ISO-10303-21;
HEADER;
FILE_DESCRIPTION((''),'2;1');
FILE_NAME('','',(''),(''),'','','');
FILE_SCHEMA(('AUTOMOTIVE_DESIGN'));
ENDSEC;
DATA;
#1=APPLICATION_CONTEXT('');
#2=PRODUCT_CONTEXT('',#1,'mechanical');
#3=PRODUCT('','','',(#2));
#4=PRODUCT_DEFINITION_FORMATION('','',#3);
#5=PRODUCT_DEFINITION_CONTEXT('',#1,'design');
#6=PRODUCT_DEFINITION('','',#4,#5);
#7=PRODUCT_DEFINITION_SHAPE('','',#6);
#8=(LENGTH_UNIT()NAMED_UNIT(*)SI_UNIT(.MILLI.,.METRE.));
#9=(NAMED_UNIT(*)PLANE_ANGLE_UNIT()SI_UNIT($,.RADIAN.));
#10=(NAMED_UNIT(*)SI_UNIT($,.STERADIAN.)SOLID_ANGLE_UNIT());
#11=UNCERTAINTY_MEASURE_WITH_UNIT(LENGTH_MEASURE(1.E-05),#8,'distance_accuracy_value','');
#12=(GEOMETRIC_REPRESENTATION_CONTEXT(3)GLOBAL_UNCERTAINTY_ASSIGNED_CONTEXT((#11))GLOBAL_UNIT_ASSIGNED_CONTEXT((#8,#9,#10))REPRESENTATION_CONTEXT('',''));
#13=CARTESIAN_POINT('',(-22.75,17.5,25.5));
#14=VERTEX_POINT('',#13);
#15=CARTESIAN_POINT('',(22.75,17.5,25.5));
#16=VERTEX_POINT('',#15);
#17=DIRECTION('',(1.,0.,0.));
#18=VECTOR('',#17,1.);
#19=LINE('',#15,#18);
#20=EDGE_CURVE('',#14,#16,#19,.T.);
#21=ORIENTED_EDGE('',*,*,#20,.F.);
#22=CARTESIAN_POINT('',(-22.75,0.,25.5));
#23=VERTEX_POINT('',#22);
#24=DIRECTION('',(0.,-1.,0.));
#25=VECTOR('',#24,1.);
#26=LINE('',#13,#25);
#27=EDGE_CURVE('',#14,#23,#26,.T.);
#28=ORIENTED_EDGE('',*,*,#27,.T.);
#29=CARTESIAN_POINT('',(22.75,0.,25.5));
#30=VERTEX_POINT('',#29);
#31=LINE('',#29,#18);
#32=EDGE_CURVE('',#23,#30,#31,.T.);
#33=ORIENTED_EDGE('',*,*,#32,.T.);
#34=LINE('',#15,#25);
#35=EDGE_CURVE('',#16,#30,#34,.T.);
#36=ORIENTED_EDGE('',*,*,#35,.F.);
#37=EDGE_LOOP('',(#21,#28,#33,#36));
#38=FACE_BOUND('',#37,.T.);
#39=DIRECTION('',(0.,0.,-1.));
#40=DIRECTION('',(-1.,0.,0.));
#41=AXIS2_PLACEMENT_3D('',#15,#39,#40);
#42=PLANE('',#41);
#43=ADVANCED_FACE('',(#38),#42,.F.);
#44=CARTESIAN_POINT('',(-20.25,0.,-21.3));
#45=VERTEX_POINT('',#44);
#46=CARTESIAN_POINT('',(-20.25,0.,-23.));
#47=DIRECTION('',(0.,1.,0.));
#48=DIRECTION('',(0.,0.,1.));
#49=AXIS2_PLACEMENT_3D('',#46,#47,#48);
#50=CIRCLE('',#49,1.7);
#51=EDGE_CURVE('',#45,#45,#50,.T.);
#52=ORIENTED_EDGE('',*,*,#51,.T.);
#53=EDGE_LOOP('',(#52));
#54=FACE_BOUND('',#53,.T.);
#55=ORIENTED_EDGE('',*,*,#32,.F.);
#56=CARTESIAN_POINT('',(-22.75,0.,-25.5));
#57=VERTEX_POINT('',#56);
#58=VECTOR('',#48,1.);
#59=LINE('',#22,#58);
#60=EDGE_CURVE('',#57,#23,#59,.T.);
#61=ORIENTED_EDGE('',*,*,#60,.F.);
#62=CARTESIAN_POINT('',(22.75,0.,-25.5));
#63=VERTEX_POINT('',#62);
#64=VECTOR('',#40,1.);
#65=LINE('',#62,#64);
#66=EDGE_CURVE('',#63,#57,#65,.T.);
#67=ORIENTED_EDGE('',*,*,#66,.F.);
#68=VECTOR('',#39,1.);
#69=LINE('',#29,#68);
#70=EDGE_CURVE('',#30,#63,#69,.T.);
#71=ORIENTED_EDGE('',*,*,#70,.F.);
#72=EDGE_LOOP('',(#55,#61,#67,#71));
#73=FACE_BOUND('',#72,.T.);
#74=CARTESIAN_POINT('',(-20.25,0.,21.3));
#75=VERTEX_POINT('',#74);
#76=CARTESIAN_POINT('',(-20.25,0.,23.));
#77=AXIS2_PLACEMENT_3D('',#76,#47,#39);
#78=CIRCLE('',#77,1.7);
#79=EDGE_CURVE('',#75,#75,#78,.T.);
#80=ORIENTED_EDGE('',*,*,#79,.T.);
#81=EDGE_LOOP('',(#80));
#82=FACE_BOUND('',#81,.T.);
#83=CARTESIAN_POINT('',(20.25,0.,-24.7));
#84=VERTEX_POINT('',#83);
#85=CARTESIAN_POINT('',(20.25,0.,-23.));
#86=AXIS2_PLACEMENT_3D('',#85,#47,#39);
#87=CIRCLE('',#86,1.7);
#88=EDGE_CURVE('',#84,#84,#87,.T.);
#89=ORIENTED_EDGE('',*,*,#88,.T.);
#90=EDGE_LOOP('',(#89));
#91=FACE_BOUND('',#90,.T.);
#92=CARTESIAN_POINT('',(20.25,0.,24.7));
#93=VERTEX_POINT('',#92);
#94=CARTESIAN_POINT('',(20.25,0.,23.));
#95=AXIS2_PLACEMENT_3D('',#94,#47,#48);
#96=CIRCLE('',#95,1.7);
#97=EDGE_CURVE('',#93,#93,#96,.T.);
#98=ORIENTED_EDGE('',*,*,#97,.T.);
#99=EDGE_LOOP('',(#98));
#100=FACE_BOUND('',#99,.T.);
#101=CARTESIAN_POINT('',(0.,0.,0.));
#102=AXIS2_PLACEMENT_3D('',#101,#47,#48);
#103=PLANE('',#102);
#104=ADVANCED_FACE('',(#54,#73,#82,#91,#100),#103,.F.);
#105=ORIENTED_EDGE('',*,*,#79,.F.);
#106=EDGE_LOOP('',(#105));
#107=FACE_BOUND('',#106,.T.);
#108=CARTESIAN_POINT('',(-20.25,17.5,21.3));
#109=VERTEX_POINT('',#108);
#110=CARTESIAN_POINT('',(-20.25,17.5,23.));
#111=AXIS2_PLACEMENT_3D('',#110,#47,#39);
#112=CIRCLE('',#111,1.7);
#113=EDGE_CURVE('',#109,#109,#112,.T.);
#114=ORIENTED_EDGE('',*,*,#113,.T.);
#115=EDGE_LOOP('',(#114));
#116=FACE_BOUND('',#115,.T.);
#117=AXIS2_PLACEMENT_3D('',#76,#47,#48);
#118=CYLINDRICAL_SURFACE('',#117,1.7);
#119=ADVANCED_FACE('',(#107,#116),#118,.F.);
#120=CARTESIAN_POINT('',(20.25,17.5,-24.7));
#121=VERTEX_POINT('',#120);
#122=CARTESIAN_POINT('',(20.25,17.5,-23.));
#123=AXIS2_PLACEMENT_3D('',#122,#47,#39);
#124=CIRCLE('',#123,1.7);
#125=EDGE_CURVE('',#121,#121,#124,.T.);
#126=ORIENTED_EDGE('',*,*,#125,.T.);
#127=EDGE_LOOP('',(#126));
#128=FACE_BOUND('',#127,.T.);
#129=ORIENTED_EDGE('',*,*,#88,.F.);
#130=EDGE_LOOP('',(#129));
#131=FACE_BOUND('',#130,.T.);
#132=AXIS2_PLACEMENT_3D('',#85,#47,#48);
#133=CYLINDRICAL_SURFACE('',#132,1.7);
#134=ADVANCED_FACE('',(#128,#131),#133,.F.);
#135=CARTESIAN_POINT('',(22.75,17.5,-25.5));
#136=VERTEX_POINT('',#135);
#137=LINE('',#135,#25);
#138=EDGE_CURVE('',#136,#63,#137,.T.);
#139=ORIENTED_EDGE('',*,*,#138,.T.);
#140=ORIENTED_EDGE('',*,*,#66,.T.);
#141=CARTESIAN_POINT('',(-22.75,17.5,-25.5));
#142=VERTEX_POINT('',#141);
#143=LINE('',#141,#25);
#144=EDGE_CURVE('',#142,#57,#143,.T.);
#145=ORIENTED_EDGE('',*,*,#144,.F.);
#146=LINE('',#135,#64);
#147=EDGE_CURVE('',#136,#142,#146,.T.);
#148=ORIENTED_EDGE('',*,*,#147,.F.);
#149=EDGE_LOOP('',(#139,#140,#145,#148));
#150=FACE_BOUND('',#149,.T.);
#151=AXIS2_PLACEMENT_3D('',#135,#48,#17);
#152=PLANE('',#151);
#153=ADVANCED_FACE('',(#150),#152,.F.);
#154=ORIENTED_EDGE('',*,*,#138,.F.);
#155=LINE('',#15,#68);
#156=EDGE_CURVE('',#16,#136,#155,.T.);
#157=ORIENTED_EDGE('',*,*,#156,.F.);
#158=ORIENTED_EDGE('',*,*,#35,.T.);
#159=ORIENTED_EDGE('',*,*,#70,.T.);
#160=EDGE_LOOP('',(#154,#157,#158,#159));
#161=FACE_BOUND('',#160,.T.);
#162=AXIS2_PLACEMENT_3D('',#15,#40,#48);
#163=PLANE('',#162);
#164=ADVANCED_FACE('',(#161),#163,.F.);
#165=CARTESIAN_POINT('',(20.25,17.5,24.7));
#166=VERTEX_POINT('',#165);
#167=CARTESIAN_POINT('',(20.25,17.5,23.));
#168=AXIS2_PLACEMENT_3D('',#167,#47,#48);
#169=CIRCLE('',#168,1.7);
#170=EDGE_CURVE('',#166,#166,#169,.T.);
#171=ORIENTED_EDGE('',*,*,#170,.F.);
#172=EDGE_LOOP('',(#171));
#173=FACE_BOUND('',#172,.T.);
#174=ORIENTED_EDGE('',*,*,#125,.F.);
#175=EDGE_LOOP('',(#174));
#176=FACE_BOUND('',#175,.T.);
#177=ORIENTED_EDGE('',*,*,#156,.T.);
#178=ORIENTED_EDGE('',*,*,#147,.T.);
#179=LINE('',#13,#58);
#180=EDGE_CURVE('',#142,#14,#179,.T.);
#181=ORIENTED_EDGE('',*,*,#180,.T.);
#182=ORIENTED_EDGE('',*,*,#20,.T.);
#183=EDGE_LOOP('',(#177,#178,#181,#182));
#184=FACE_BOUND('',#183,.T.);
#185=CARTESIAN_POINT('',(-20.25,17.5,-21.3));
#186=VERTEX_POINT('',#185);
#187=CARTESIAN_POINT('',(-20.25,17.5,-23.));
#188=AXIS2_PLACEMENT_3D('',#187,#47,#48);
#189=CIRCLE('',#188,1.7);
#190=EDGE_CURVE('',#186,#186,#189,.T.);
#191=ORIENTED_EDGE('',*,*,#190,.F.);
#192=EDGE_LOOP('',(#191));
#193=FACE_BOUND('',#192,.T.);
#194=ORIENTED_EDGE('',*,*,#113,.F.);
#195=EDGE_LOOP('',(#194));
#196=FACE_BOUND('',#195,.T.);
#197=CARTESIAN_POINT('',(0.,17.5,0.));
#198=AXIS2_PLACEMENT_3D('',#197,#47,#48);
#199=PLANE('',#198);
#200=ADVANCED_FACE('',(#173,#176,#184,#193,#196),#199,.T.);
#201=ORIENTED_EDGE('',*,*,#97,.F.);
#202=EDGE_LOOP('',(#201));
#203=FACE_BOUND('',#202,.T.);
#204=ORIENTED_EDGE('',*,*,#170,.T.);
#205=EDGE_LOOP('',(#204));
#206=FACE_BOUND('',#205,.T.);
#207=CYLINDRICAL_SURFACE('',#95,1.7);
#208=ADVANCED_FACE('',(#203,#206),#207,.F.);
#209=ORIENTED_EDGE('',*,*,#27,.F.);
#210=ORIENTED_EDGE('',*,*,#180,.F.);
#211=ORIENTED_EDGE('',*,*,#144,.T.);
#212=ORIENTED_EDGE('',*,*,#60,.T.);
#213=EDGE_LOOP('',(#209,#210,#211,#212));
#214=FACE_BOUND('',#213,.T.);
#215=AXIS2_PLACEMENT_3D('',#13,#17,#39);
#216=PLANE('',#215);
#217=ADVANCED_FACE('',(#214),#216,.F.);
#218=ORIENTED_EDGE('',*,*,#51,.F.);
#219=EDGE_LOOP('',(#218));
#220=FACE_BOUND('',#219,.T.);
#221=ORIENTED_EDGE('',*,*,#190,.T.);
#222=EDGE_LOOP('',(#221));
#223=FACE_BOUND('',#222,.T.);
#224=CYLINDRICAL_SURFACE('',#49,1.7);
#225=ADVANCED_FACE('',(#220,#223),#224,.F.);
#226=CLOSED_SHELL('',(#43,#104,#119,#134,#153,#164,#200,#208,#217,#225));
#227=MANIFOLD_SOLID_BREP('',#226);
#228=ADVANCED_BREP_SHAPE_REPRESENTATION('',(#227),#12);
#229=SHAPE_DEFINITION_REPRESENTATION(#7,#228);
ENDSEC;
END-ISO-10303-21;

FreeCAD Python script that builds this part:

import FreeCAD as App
import Part
import Sketcher
from FreeCAD import Vector

doc = App.newDocument("Part")
body = doc.addObject("PartDesign::Body", "Body")

# Sketch on XZ plane
sketch1 = doc.addObject("Sketcher::SketchObject", "Sketch")
body.addObject(sketch1)
sketch1.AttachmentSupport = (doc.XZ_Plane, [""])
sketch1.MapMode = "FlatFace"
sketch1.addGeometry([
    Part.LineSegment(Vector(-23, -26, 0), Vector(-23, 26, 0)),
    Part.LineSegment(Vector(-23, 26, 0), Vector(23, 26, 0)),
    Part.LineSegment(Vector(23, 26, 0), Vector(23, -26, 0)),
    Part.LineSegment(Vector(23, -26, 0), Vector(-23, -26, 0)),
], False)
sketch1.addConstraint([
    Sketcher.Constraint("Coincident", 0, 2, 1, 1),
    Sketcher.Constraint("Coincident", 1, 2, 2, 1),
    Sketcher.Constraint("Coincident", 2, 2, 3, 1),
    Sketcher.Constraint("Coincident", 3, 2, 0, 1),
    Sketcher.Constraint("Vertical", 0),
    Sketcher.Constraint("Horizontal", 1),
    Sketcher.Constraint("Vertical", 2),
    Sketcher.Constraint("Horizontal", 3),
    Sketcher.Constraint("Symmetric", 0, 2, 2, 2, -1, 1),
    Sketcher.Constraint("DistanceY", 0, 1, 0, 2, 51.0),
    Sketcher.Constraint("DistanceX", 1, 1, 1, 2, 45.5),
])
pad1 = doc.addObject("PartDesign::Pad", "Pad")
body.addObject(pad1)
pad1.Profile = sketch1
pad1.Length = 17.5
pad1.Reversed = True

# Sketch on XZ plane
sketch2 = doc.addObject("Sketcher::SketchObject", "Sketch001")
body.addObject(sketch2)
sketch2.AttachmentSupport = (doc.XZ_Plane, [""])
sketch2.MapMode = "FlatFace"
sketch2.AttachmentOffset = App.Placement(Vector(0, 0, -17.5), App.Rotation())
sketch2.addGeometry([
    Part.Circle(Vector(20.2, 23, 0), Vector(0, 0, 1), 1.7),
    Part.Circle(Vector(-20.2, 23, 0), Vector(0, 0, 1), 1.7),
    Part.Circle(Vector(20.2, -23, 0), Vector(0, 0, 1), 1.7),
    Part.Circle(Vector(-20.2, -23, 0), Vector(0, 0, 1), 1.7),
], False)
sketch2.addConstraint([
    Sketcher.Constraint("Equal", 0, 1),
    Sketcher.Constraint("Equal", 1, 2),
    Sketcher.Constraint("Equal", 2, 3),
    Sketcher.Constraint("Symmetric", 1, 3, 2, 3, -1, 1),
    Sketcher.Constraint("Symmetric", 0, 3, 3, 3, -1, 1),
    Sketcher.Constraint("Symmetric", 0, 3, 1, 3, -2),
    Sketcher.Constraint("Diameter", 0, 3.4),
    Sketcher.Constraint("DistanceY", -1, 1, 0, 3, 23.0),
    Sketcher.Constraint("DistanceX", 1, 3, 0, 3, 40.5),
])
pocket1 = doc.addObject("PartDesign::Pocket", "Pocket")
body.addObject(pocket1)
pocket1.Profile = sketch2
pocket1.Type = "ThroughAll"
pocket1.Reversed = True

doc.recompute()
